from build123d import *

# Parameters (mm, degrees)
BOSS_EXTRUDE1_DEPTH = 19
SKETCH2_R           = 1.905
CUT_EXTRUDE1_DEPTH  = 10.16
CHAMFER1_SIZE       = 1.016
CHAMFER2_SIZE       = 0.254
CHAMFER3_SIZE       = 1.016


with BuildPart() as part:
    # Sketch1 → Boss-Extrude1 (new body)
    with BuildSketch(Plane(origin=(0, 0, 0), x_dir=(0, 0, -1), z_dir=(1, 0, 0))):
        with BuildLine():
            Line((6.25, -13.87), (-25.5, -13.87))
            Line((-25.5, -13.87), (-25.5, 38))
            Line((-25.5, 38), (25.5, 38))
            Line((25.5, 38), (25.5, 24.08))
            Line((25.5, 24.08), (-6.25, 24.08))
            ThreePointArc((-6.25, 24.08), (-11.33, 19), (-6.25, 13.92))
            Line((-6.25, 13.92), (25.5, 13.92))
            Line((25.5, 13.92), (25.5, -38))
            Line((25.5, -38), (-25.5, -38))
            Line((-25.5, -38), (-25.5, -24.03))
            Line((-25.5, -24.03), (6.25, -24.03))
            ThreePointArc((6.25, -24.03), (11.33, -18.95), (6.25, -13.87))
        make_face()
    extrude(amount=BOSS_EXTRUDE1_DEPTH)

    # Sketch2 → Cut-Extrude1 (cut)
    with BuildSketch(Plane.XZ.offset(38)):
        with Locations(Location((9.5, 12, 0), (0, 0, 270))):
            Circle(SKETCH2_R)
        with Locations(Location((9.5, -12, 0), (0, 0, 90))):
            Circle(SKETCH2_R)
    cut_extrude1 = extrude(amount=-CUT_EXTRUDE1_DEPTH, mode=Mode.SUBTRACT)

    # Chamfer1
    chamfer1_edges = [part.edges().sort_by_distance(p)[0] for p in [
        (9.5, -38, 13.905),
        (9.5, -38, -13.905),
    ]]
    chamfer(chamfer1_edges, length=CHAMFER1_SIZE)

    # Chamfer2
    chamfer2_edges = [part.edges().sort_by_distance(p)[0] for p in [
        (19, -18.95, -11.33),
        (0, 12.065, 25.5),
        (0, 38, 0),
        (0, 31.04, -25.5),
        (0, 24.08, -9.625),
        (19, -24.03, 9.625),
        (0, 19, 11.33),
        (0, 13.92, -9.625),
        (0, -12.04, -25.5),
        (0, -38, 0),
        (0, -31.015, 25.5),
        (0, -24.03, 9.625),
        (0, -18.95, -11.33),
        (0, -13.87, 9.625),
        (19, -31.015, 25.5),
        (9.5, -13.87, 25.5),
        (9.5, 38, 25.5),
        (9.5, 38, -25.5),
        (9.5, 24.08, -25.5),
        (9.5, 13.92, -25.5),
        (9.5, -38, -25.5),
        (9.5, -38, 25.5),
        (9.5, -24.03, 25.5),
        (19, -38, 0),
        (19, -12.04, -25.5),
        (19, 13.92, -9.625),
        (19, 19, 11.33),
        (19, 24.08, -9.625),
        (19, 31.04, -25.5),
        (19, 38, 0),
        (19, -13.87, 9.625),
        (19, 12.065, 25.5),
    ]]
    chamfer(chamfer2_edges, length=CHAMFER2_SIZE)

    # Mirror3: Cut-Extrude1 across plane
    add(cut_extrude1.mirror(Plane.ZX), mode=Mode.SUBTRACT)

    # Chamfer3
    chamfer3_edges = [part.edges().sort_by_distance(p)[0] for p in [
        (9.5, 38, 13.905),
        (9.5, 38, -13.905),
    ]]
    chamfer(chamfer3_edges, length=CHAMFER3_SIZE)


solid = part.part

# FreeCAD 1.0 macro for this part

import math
import FreeCAD as App
import Part
import Sketcher
from FreeCAD import Vector
Q = App.Units.Quantity


def edges_at(feature, points):
    """Names of the edges that pass closest to the given points."""
    edges = feature.Shape.Edges
    near = lambda p: min(range(len(edges)), key=lambda i: edges[i].distToShape(Part.Vertex(*p))[0])
    return sorted({f"Edge{near(p) + 1}" for p in points})

doc = App.newDocument("Part")
body = doc.addObject("PartDesign::Body", "Body")

# Sketch on YZ plane
sketch1 = body.newObject("Sketcher::SketchObject", "Sketch")
sketch1.AttachmentSupport = (doc.getObject("YZ_Plane"), [""])
sketch1.MapMode = "FlatFace"
sketch1.addGeometry(Part.LineSegment(Vector(-14, 26, 0), Vector(-14, -6, 0)), False)
sketch1.addGeometry(Part.ArcOfCircle(Part.Circle(Vector(-19, -6, 0), Vector(0, 0, 1), 5), math.radians(180), math.radians(360)), False)
sketch1.addGeometry(Part.LineSegment(Vector(-24, -6, 0), Vector(-24, 26, 0)), False)
sketch1.addGeometry(Part.LineSegment(Vector(-24, 26, 0), Vector(-38, 26, 0)), False)
sketch1.addGeometry(Part.LineSegment(Vector(-38, 26, 0), Vector(-38, -26, 0)), False)
sketch1.addGeometry(Part.LineSegment(Vector(-38, -26, 0), Vector(14, -26, 0)), False)
sketch1.addGeometry(Part.LineSegment(Vector(14, -26, 0), Vector(14, 6, 0)), False)
sketch1.addGeometry(Part.ArcOfCircle(Part.Circle(Vector(19, 6, 0), Vector(0, 0, 1), 5), math.radians(0), math.radians(180)), False)
sketch1.addGeometry(Part.LineSegment(Vector(24, 6, 0), Vector(24, -26, 0)), False)
sketch1.addGeometry(Part.LineSegment(Vector(24, -26, 0), Vector(38, -26, 0)), False)
sketch1.addGeometry(Part.LineSegment(Vector(38, -26, 0), Vector(38, 26, 0)), False)
sketch1.addGeometry(Part.LineSegment(Vector(38, 26, 0), Vector(-14, 26, 0)), False)
sketch1.addConstraint(Sketcher.Constraint("Tangent", 0, 2, 1, 2))
sketch1.addConstraint(Sketcher.Constraint("Tangent", 1, 1, 2, 1))
sketch1.addConstraint(Sketcher.Constraint("Coincident", 2, 2, 3, 1))
sketch1.addConstraint(Sketcher.Constraint("Coincident", 3, 2, 4, 1))
sketch1.addConstraint(Sketcher.Constraint("Coincident", 4, 2, 5, 1))
sketch1.addConstraint(Sketcher.Constraint("Coincident", 5, 2, 6, 1))
sketch1.addConstraint(Sketcher.Constraint("Tangent", 6, 2, 7, 2))
sketch1.addConstraint(Sketcher.Constraint("Tangent", 7, 1, 8, 1))
sketch1.addConstraint(Sketcher.Constraint("Coincident", 8, 2, 9, 1))
sketch1.addConstraint(Sketcher.Constraint("Coincident", 9, 2, 10, 1))
sketch1.addConstraint(Sketcher.Constraint("Coincident", 10, 2, 11, 1))
sketch1.addConstraint(Sketcher.Constraint("Coincident", 11, 2, 0, 1))
sketch1.addConstraint(Sketcher.Constraint("Vertical", 0))
sketch1.addConstraint(Sketcher.Constraint("Vertical", 2))
sketch1.addConstraint(Sketcher.Constraint("Horizontal", 3))
sketch1.addConstraint(Sketcher.Constraint("Vertical", 4))
sketch1.addConstraint(Sketcher.Constraint("Horizontal", 5))
sketch1.addConstraint(Sketcher.Constraint("Vertical", 6))
sketch1.addConstraint(Sketcher.Constraint("Vertical", 8))
sketch1.addConstraint(Sketcher.Constraint("Horizontal", 9))
sketch1.addConstraint(Sketcher.Constraint("Vertical", 10))
sketch1.addConstraint(Sketcher.Constraint("Horizontal", 11))
sketch1.addConstraint(Sketcher.Constraint("Equal", 1, 7))
sketch1.addConstraint(Sketcher.Constraint("Symmetric", 3, 2, 9, 2, -1, 1))
sketch1.addConstraint(Sketcher.Constraint("Horizontal", 5, 2, 8, 2))
sketch1.addConstraint(Sketcher.Constraint("Horizontal", 3, 2, 10, 2))
sketch1.addConstraint(Sketcher.Constraint("Equal", 2, 6))
sketch1.addConstraint(Sketcher.Constraint("Radius", 1, Q("0.2 in")))
sketch1.addConstraint(Sketcher.Constraint("DistanceX", 3, 2, 3, 1, Q("0.55 in")))
sketch1.addConstraint(Sketcher.Constraint("DistanceY", 0, 2, 0, 1, Q("1.25 in")))
sketch1.addConstraint(Sketcher.Constraint("DistanceX", 5, 1, 5, 2, 51.92))
sketch1.addConstraint(Sketcher.Constraint("DistanceX", 9, 1, 9, 2, 13.92))
sketch1.addConstraint(Sketcher.Constraint("DistanceY", 4, 2, 4, 1, 51.0))
pad1 = body.newObject("PartDesign::Pad", "Pad")
pad1.Profile = sketch1
pad1.Length = 19

# Sketch on XZ plane
sketch2 = body.newObject("Sketcher::SketchObject", "Sketch001")
sketch2.AttachmentSupport = (doc.getObject("XZ_Plane"), [""])
sketch2.MapMode = "FlatFace"
sketch2.AttachmentOffset = App.Placement(Vector(0, 0, 38), App.Rotation())
sketch2.addGeometry(Part.Circle(Vector(9.5, 12, 0), Vector(0, 0, 1), 1.9), False)
sketch2.addGeometry(Part.Circle(Vector(9.5, -12, 0), Vector(0, 0, 1), 1.9), False)
sketch2.addConstraint(Sketcher.Constraint("Equal", 0, 1))
sketch2.addConstraint(Sketcher.Constraint("Symmetric", 0, 3, 1, 3, -1))
sketch2.addConstraint(Sketcher.Constraint("Diameter", 0, Q("0.15 in")))
sketch2.addConstraint(Sketcher.Constraint("DistanceX", -1, 1, 0, 3, 9.5))
sketch2.addConstraint(Sketcher.Constraint("DistanceY", -1, 1, 0, 3, 12.0))
pocket1 = body.newObject("PartDesign::Pocket", "Pocket")
pocket1.Profile = sketch2
pocket1.Length = Q("0.4 in")
doc.recompute()

chamfer = body.newObject("PartDesign::Chamfer", "Chamfer")
chamfer.Base = (pocket1, edges_at(pocket1, [(9.5, -38, 13.905), (9.5, -38, -13.905)]))
chamfer.Size = Q("0.04 in")
doc.recompute()

chamfer2 = body.newObject("PartDesign::Chamfer", "Chamfer001")
chamfer2.Base = (chamfer, edges_at(chamfer, [
    (19, -18.95, -11.33),
    (0, 12.065, 25.5),
    (0, 38, 0),
    (0, 31.04, -25.5),
    (0, 24.08, -9.625),
    (19, -24.03, 9.625),
    (0, 19, 11.33),
    (0, 13.92, -9.625),
    (0, -12.04, -25.5),
    (0, -38, 0),
    (0, -31.015, 25.5),
    (0, -24.03, 9.625),
    (0, -18.95, -11.33),
    (0, -13.87, 9.625),
    (19, -31.015, 25.5),
    (9.5, -13.87, 25.5),
    (9.5, 38, 25.5),
    (9.5, 38, -25.5),
    (9.5, 24.08, -25.5),
    (9.5, 13.92, -25.5),
    (9.5, -38, -25.5),
    (9.5, -38, 25.5),
    (9.5, -24.03, 25.5),
    (19, -38, 0),
    (19, -12.04, -25.5),
    (19, 13.92, -9.625),
    (19, 19, 11.33),
    (19, 24.08, -9.625),
    (19, 31.04, -25.5),
    (19, 38, 0),
    (19, -13.87, 9.625),
    (19, 12.065, 25.5),
]))
chamfer2.Size = Q("0.01 in")
doc.recompute()

mirrored = body.newObject("PartDesign::Mirrored", "Mirrored")
mirrored.Originals = [pocket1]
mirrored.MirrorPlane = (doc.getObject("XZ_Plane"), [""])
body.Tip = mirrored
doc.recompute()

chamfer3 = body.newObject("PartDesign::Chamfer", "Chamfer002")
chamfer3.Base = (mirrored, edges_at(mirrored, [(9.5, 38, 13.905), (9.5, 38, -13.905)]))
chamfer3.Size = Q("0.04 in")

doc.recompute()
